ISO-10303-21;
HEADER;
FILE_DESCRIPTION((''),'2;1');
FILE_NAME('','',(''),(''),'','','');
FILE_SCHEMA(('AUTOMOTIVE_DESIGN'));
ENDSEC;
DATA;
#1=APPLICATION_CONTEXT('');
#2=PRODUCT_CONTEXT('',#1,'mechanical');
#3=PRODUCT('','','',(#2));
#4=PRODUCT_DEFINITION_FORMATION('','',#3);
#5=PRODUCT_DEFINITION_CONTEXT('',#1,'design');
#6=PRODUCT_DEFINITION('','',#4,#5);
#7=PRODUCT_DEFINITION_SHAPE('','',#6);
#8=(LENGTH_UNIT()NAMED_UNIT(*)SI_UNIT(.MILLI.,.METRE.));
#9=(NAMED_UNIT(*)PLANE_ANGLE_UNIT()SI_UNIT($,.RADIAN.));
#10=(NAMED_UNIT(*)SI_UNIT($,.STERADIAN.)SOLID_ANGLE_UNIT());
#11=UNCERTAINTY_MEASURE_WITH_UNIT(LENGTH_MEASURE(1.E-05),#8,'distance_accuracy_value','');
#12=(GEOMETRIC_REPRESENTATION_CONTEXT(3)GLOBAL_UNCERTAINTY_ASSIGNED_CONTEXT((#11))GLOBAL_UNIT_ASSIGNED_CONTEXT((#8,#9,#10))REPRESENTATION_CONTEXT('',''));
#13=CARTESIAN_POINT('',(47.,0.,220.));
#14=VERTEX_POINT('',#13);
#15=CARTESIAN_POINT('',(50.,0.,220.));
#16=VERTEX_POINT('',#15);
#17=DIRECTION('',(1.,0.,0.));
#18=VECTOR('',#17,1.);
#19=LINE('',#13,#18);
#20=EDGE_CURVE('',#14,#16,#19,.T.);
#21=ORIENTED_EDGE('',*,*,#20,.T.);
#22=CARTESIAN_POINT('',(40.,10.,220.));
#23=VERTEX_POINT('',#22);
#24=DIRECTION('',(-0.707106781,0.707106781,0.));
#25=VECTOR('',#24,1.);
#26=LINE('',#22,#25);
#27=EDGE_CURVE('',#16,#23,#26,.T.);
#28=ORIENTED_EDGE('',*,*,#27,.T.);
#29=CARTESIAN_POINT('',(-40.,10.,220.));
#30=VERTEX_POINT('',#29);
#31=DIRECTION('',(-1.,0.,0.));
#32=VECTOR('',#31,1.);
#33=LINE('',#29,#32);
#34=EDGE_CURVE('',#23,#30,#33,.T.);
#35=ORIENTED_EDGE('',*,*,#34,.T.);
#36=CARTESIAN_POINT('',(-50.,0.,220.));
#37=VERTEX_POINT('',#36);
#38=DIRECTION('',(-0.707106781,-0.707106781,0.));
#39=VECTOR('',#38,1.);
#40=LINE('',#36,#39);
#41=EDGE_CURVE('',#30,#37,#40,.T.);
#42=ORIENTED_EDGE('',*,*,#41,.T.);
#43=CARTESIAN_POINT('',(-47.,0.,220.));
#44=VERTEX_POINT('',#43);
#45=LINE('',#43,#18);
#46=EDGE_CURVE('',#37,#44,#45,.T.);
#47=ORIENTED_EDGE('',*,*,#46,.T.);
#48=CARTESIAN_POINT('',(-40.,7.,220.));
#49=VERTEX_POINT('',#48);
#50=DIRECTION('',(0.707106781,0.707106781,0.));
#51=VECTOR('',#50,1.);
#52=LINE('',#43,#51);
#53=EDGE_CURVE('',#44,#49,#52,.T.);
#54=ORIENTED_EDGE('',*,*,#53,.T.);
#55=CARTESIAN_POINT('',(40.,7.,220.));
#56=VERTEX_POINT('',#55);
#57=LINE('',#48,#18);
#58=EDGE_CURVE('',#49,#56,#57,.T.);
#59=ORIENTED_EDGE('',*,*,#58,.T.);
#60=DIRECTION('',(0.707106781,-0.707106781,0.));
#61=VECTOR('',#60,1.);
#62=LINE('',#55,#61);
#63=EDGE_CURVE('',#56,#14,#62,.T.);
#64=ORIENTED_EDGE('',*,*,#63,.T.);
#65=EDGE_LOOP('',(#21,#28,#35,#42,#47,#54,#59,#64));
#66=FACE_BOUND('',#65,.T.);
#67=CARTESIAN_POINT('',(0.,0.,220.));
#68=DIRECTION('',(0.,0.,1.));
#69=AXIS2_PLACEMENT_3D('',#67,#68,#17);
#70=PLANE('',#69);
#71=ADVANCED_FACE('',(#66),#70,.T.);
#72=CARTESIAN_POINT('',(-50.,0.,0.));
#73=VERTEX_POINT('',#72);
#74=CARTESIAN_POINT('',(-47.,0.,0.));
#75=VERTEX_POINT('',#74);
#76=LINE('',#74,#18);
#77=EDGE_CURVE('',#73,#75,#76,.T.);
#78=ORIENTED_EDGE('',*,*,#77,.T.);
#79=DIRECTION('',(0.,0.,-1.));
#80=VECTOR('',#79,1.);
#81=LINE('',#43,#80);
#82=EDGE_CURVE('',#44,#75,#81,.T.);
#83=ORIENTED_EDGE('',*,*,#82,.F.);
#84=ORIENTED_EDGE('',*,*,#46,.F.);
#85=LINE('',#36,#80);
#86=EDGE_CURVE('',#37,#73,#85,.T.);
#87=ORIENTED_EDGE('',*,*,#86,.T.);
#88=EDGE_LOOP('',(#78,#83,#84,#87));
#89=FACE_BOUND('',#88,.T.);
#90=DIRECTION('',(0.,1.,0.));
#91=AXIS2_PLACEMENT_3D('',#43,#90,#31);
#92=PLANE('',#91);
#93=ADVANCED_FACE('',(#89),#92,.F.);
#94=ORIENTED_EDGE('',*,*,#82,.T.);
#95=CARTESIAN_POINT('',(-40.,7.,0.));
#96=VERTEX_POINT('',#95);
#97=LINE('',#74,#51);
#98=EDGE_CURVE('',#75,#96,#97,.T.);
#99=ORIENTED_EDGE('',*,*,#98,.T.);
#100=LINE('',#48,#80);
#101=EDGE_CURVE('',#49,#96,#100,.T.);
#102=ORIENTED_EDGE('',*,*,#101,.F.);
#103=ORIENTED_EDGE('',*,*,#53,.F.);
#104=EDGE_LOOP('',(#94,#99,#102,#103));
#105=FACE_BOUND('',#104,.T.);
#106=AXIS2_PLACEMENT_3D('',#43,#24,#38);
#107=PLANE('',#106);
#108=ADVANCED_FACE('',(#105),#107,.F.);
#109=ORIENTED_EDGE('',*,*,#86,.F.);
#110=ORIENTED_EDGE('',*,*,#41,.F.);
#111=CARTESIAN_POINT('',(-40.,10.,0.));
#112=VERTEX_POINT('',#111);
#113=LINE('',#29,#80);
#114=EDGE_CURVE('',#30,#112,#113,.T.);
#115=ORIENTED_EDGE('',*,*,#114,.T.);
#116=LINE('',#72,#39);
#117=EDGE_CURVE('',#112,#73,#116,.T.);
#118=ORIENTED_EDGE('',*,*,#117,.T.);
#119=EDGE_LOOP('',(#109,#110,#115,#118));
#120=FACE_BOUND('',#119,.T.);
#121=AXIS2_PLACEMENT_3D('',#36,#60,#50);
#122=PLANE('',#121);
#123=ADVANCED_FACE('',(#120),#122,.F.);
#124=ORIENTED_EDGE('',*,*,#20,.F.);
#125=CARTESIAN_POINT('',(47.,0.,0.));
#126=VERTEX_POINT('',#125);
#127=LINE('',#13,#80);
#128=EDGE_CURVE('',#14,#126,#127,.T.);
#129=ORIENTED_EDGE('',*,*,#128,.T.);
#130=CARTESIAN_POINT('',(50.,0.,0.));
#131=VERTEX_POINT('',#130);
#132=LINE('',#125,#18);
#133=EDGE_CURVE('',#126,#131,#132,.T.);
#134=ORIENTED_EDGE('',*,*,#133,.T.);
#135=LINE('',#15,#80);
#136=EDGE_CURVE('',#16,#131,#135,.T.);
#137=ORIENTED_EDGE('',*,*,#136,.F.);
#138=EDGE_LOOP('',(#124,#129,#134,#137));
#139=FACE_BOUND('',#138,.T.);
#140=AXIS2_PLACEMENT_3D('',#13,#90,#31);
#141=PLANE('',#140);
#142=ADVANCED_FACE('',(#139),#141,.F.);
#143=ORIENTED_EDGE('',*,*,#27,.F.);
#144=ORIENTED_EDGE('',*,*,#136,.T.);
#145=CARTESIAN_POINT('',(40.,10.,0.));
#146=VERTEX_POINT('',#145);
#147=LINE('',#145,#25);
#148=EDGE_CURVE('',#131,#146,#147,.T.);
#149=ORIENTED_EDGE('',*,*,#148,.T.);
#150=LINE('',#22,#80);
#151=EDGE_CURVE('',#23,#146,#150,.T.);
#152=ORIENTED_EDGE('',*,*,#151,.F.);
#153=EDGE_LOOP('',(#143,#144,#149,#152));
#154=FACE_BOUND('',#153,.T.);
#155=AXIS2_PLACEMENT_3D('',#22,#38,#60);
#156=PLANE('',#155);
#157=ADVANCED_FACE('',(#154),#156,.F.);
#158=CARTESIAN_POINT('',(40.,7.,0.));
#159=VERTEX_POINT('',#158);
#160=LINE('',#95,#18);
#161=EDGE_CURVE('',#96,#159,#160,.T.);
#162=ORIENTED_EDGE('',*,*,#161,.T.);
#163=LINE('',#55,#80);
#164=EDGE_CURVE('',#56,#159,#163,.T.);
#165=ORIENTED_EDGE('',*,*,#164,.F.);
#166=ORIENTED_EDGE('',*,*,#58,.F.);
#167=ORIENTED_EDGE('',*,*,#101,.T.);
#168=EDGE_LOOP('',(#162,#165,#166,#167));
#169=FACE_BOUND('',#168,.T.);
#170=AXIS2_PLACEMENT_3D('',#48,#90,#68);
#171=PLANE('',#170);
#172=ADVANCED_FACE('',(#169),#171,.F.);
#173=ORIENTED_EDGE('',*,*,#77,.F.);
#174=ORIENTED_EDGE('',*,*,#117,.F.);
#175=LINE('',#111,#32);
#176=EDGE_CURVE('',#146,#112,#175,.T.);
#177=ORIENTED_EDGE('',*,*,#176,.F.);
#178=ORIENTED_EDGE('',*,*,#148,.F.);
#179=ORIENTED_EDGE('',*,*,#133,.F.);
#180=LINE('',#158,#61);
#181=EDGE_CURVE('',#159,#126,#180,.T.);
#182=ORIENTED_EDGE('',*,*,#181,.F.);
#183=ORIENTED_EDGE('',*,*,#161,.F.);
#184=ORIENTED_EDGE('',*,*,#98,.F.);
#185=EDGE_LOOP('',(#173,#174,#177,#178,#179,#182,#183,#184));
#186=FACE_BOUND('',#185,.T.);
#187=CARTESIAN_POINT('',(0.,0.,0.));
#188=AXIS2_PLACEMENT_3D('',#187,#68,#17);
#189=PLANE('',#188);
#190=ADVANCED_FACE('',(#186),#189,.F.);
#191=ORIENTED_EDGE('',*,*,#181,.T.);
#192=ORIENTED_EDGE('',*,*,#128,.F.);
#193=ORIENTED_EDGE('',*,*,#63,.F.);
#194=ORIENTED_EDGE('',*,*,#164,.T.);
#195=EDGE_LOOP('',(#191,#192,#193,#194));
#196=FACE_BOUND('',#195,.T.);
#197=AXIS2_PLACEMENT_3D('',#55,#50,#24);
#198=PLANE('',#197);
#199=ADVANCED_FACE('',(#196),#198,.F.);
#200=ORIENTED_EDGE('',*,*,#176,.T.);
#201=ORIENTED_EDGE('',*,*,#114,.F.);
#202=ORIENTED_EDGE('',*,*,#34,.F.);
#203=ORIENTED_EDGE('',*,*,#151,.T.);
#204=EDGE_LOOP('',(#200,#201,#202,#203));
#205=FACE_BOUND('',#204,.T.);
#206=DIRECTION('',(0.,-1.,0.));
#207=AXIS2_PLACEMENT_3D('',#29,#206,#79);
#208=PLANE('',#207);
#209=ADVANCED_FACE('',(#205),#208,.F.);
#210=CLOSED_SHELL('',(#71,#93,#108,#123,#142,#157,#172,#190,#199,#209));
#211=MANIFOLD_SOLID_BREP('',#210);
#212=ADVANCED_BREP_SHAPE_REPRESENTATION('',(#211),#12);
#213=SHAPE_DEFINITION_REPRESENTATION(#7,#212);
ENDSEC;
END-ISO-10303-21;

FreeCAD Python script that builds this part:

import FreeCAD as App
import Part
import Sketcher
from FreeCAD import Vector


def add_polygon(sketch, points):
    """Adds a closed chain of lines whose ends are joined by coincident constraints."""
    first, n = sketch.GeometryCount, len(points)
    for a, b in zip(points, points[1:] + points[:1]):
        sketch.addGeometry(Part.LineSegment(App.Vector(*a, 0), App.Vector(*b, 0)), False)
    for i in range(n):
        sketch.addConstraint(Sketcher.Constraint("Coincident", first + i, 2, first + (i + 1) % n, 1))

doc = App.newDocument("Part")
body = doc.addObject("PartDesign::Body", "Body")

# Sketch on XY plane
sketch1 = doc.addObject("Sketcher::SketchObject", "Sketch")
body.addObject(sketch1)
sketch1.AttachmentSupport = (doc.XY_Plane, [""])
sketch1.MapMode = "FlatFace"
add_polygon(sketch1, [(-50, 0), (-47, 0), (-40, 7), (40, 7), (47, 0), (50, 0), (40, 10), (-40, 10)])  # lines 0-7
sketch1.addConstraint([
    Sketcher.Constraint("Horizontal", 0),
    Sketcher.Constraint("Horizontal", 2),
    Sketcher.Constraint("Horizontal", 4),
    Sketcher.Constraint("Horizontal", 6),
    Sketcher.Constraint("Symmetric", 0, 2, 3, 2, -1, 1),
    Sketcher.Constraint("Symmetric", 4, 2, 7, 2, -2),
    Sketcher.Constraint("Perpendicular", 1, 3),
    Sketcher.Constraint("Parallel", 3, 5),
    Sketcher.Constraint("Perpendicular", 5, 7),
    Sketcher.Constraint("Vertical", 2, 2, 5, 2),
    Sketcher.Constraint("Vertical", 1, 2, 6, 2),
    Sketcher.Constraint("DistanceX", 0, 1, 0, 2, 3.0),
    Sketcher.Constraint("DistanceX", 2, 1, 2, 2, 80.0),
    Sketcher.Constraint("DistanceX", 0, 2, -1, 1, 47.0),
])
pad1 = doc.addObject("PartDesign::Pad", "Pad")
body.addObject(pad1)
pad1.Profile = sketch1
pad1.Length = 220

doc.recompute()
